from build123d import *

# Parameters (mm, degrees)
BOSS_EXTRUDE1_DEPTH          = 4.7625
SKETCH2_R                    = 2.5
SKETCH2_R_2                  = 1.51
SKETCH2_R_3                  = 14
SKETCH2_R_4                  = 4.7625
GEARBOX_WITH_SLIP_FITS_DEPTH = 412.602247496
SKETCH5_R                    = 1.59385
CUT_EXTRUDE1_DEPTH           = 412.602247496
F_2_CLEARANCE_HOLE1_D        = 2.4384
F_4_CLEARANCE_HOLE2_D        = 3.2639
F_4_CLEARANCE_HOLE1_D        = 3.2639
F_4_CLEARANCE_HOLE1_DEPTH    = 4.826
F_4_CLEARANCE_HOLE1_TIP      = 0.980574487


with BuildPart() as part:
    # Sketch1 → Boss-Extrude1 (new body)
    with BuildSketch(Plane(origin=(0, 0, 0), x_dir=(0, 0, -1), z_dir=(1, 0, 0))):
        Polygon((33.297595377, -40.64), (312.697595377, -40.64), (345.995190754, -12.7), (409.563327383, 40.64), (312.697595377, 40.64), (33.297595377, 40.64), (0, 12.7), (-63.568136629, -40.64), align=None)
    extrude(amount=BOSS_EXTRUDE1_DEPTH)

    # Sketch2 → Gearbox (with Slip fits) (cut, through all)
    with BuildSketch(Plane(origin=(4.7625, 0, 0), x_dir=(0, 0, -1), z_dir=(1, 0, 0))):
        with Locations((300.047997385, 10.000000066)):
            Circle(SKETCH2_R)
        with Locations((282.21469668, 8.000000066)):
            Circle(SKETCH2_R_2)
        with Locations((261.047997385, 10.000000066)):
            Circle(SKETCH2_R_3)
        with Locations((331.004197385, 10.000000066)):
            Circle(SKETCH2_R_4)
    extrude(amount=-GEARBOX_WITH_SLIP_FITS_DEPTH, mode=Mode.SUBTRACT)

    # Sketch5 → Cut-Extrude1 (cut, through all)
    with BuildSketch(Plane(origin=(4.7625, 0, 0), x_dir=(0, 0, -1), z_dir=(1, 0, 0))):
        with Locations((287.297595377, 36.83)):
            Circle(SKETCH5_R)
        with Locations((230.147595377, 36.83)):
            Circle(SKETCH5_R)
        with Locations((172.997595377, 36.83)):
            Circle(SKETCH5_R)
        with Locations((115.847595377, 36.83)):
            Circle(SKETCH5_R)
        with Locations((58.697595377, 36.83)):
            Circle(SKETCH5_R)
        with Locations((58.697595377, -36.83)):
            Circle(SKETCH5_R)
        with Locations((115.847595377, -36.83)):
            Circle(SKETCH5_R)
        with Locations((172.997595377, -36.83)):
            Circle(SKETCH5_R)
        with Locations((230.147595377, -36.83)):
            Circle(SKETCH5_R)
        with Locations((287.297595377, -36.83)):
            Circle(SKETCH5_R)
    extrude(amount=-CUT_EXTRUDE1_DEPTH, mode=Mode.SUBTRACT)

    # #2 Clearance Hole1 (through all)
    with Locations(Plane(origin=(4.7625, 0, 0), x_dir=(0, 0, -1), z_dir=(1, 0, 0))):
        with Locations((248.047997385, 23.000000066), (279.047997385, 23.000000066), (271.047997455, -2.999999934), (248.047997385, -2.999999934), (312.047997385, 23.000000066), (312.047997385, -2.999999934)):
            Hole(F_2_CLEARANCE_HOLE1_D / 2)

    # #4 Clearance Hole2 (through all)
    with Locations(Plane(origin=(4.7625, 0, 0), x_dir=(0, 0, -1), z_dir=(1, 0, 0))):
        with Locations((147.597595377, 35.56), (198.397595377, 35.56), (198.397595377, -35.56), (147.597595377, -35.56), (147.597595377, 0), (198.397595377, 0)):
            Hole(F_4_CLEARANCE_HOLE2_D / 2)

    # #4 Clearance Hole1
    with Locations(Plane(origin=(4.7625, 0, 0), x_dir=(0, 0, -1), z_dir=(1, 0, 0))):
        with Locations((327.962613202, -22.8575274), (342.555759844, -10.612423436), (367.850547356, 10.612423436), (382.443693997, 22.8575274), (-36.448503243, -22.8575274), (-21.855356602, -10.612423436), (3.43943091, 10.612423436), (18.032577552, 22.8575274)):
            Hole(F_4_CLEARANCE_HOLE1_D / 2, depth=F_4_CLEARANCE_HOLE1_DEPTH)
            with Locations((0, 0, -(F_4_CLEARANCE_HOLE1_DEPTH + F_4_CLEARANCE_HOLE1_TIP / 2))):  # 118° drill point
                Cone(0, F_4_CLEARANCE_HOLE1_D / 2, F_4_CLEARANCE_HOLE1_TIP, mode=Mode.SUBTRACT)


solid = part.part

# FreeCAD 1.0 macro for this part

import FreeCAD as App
import Part
import Sketcher

V = App.Vector
Q = App.Units.Quantity

doc = App.newDocument("Part")
params = doc.addObject("Spreadsheet::Sheet", "Params")
for row, (alias, value) in enumerate([
    ("pad1_length", "0.1875 in"),
    ("sketch2_diameter", "0.375 in"),
    ("sketch4_diameter", "0.096 in"),
    ("hole_diameter", "0.096 in"),
    ("hole2_diameter", "0.1285 in"),
    ("hole3_diameter", "0.1285 in"),
    ("hole3_depth", "0.19 in"),
], start=1):
    params.set(f"A{row}", alias)
    params.set(f"B{row}", "=" + value)
    params.setAlias(f"B{row}", alias)

body = doc.addObject("PartDesign::Body", "Body")

# Sketch on YZ plane
sketch1 = body.newObject("Sketcher::SketchObject", "Sketch")
sketch1.AttachmentSupport = (doc.getObject("YZ_Plane"), [""])
sketch1.MapMode = "FlatFace"
sketch1.addGeometry(Part.LineSegment(V(-41, -313, 0), V(-13, -346, 0)), False)
sketch1.addGeometry(Part.LineSegment(V(-13, -346, 0), V(41, -410, 0)), False)
sketch1.addGeometry(Part.LineSegment(V(41, -410, 0), V(41, -33, 0)), False)
sketch1.addGeometry(Part.LineSegment(V(41, -33, 0), V(13, 0, 0)), False)
sketch1.addGeometry(Part.LineSegment(V(13, 0, 0), V(-41, 64, 0)), False)
sketch1.addGeometry(Part.LineSegment(V(-41, 64, 0), V(-41, -313, 0)), False)
sketch1.addConstraint(Sketcher.Constraint("Coincident", 0, 2, 1, 1))
sketch1.addConstraint(Sketcher.Constraint("Coincident", 1, 2, 2, 1))
sketch1.addConstraint(Sketcher.Constraint("Coincident", 2, 2, 3, 1))
sketch1.addConstraint(Sketcher.Constraint("Coincident", 3, 2, 4, 1))
sketch1.addConstraint(Sketcher.Constraint("Coincident", 4, 2, 5, 1))
sketch1.addConstraint(Sketcher.Constraint("Coincident", 5, 2, 0, 1))
sketch1.addConstraint(Sketcher.Constraint("Vertical", 2))
sketch1.addConstraint(Sketcher.Constraint("Vertical", 5))
sketch1.addConstraint(Sketcher.Constraint("PointOnObject", 3, 2, -1))
sketch1.addConstraint(Sketcher.Constraint("Parallel", 0, 1))
sketch1.addConstraint(Sketcher.Constraint("Parallel", 1, 3))
sketch1.addConstraint(Sketcher.Constraint("Parallel", 3, 4))
sketch1.addConstraint(Sketcher.Constraint("Equal", 0, 3))
sketch1.addConstraint(Sketcher.Constraint("Angle", 0, Q("-50 deg")))
sketch1.addConstraint(Sketcher.Constraint("DistanceX", 0, 2, 3, 2, Q("1 in")))
sketch1.addConstraint(Sketcher.Constraint("DistanceY", 5, 2, 2, 2, Q("11 in")))
sketch1.addConstraint(Sketcher.Constraint("DistanceX", 0, 2, -1, 1, Q("0.5 in")))
sketch1.addConstraint(Sketcher.Constraint("DistanceX", -1, 1, 1, 2, Q("1.6 in")))
pad1 = body.newObject("PartDesign::Pad", "Pad")
pad1.Profile = sketch1
pad1.setExpression("Length", "Params.pad1_length")

# Sketch on YZ plane
sketch2 = body.newObject("Sketcher::SketchObject", "Sketch001")
sketch2.AttachmentSupport = (doc.getObject("YZ_Plane"), [""])
sketch2.MapMode = "FlatFace"
sketch2.AttachmentOffset = App.Placement(V(0, 0, 0.1875 * 25.4), App.Rotation())
sketch2.addGeometry(Part.Circle(V(10, -300, 0), V(0, 0, 1), 2.5), False)
sketch2.addGeometry(Part.Circle(V(8, -282.2, 0), V(0, 0, 1), 1.5), False)
sketch2.addGeometry(Part.Circle(V(10, -261, 0), V(0, 0, 1), 14), False)
sketch2.addGeometry(Part.Circle(V(10, -331, 0), V(0, 0, 1), 4.8), False)
sketch2.addConstraint(Sketcher.Constraint("Vertical", 0, 3, 2, 3))
sketch2.addConstraint(Sketcher.Constraint("Vertical", 2, 3, 3, 3))
sketch2.addConstraint(Sketcher.Constraint("Diameter", 3, Q("0.375 in")))
sketch2.addConstraint(Sketcher.Constraint("Diameter", 0, Q("5 mm")))
sketch2.addConstraint(Sketcher.Constraint("Diameter", 1, Q("3.02 mm")))
sketch2.addConstraint(Sketcher.Constraint("Diameter", 2, Q("28 mm")))
sketch2.addConstraint(Sketcher.Constraint("DistanceX", -1, 1, 0, 3, Q("10 mm")))
sketch2.addConstraint(Sketcher.Constraint("DistanceX", -1, 1, 1, 3, Q("8 mm")))
sketch2.addConstraint(Sketcher.Constraint("DistanceY", 0, 3, 1, 3, Q("17.833301 mm")))
sketch2.addConstraint(Sketcher.Constraint("DistanceY", 1, 3, 2, 3, Q("21.166699 mm")))
sketch2.addConstraint(Sketcher.Constraint("DistanceY", 3, 3, 0, 3, Q("30.9562 mm")))
sketch2.addConstraint(Sketcher.Constraint("DistanceY", 0, 3, -1, 1, Q("300.047997 mm")))
sketch2.setExpression("Constraints[2]", "Params.sketch2_diameter")
pocket1 = body.newObject("PartDesign::Pocket", "Pocket")
pocket1.Profile = sketch2
pocket1.Type = "ThroughAll"

# Sketch on YZ plane
sketch3 = body.newObject("Sketcher::SketchObject", "Sketch002")
sketch3.AttachmentSupport = (doc.getObject("YZ_Plane"), [""])
sketch3.MapMode = "FlatFace"
sketch3.AttachmentOffset = App.Placement(V(0, 0, 0.1875 * 25.4), App.Rotation())
sketch3.addGeometry(Part.Circle(V(36.8, -287.3, 0), V(0, 0, 1), 1.6), False)
sketch3.addGeometry(Part.Circle(V(36.8, -230.1, 0), V(0, 0, 1), 1.6), False)
sketch3.addGeometry(Part.Circle(V(36.8, -173, 0), V(0, 0, 1), 1.6), False)
sketch3.addGeometry(Part.Circle(V(36.8, -115.8, 0), V(0, 0, 1), 1.6), False)
sketch3.addGeometry(Part.Circle(V(36.8, -58.7, 0), V(0, 0, 1), 1.6), False)
sketch3.addGeometry(Part.Circle(V(-36.8, -58.7, 0), V(0, 0, 1), 1.6), False)
sketch3.addGeometry(Part.Circle(V(-36.8, -115.8, 0), V(0, 0, 1), 1.6), False)
sketch3.addGeometry(Part.Circle(V(-36.8, -173, 0), V(0, 0, 1), 1.6), False)
sketch3.addGeometry(Part.Circle(V(-36.8, -230.1, 0), V(0, 0, 1), 1.6), False)
sketch3.addGeometry(Part.Circle(V(-36.8, -287.3, 0), V(0, 0, 1), 1.6), False)
sketch3.addConstraint(Sketcher.Constraint("Equal", 0, 1))
sketch3.addConstraint(Sketcher.Constraint("Equal", 1, 2))
sketch3.addConstraint(Sketcher.Constraint("Equal", 2, 3))
sketch3.addConstraint(Sketcher.Constraint("Equal", 3, 4))
sketch3.addConstraint(Sketcher.Constraint("Equal", 4, 5))
sketch3.addConstraint(Sketcher.Constraint("Equal", 5, 6))
sketch3.addConstraint(Sketcher.Constraint("Equal", 6, 7))
sketch3.addConstraint(Sketcher.Constraint("Equal", 7, 8))
sketch3.addConstraint(Sketcher.Constraint("Equal", 8, 9))
sketch3.addConstraint(Sketcher.Constraint("Symmetric", 4, 3, 5, 3, -2))
sketch3.addConstraint(Sketcher.Constraint("Symmetric", 3, 3, 6, 3, -2))
sketch3.addConstraint(Sketcher.Constraint("Symmetric", 2, 3, 7, 3, -2))
sketch3.addConstraint(Sketcher.Constraint("Symmetric", 1, 3, 8, 3, -2))
sketch3.addConstraint(Sketcher.Constraint("Symmetric", 0, 3, 9, 3, -2))
sketch3.addConstraint(Sketcher.Constraint("Vertical", 0, 3, 1, 3))
sketch3.addConstraint(Sketcher.Constraint("Vertical", 1, 3, 2, 3))
sketch3.addConstraint(Sketcher.Constraint("Vertical", 2, 3, 3, 3))
sketch3.addConstraint(Sketcher.Constraint("Vertical", 3, 3, 4, 3))
sketch3.addConstraint(Sketcher.Constraint("DistanceY", 0, 3, 4, 3, Q("9 in")))
sketch3.addConstraint(Sketcher.Constraint("Diameter", 0, Q("0.1255 in")))
sketch3.addConstraint(Sketcher.Constraint("DistanceY", 0, 3, 2, 3, Q("4.5 in")))
sketch3.addConstraint(Sketcher.Constraint("DistanceY", 1, 3, 3, 3, Q("4.5 in")))
sketch3.addConstraint(Sketcher.Constraint("DistanceX", 5, 3, 4, 3, Q("2.9 in")))
sketch3.addConstraint(Sketcher.Constraint("DistanceY", 0, 3, 1, 3, Q("2.25 in")))
sketch3.addConstraint(Sketcher.Constraint("DistanceY", 0, 3, -1, 1, Q("287.297595 mm")))
pocket2 = body.newObject("PartDesign::Pocket", "Pocket001")
pocket2.Profile = sketch3
pocket2.Type = "ThroughAll"

# Sketch on YZ plane
sketch4 = body.newObject("Sketcher::SketchObject", "Sketch003")
sketch4.AttachmentSupport = (doc.getObject("YZ_Plane"), [""])
sketch4.MapMode = "FlatFace"
sketch4.AttachmentOffset = App.Placement(V(0, 0, 0.1875 * 25.4), App.Rotation())
sketch4.addGeometry(Part.Circle(V(23, -248, 0), V(0, 0, 1), 1.2), False)
sketch4.addGeometry(Part.Circle(V(23, -279, 0), V(0, 0, 1), 1.2), False)
sketch4.addGeometry(Part.Circle(V(-3, -271, 0), V(0, 0, 1), 1.2), False)
sketch4.addGeometry(Part.Circle(V(-3, -248, 0), V(0, 0, 1), 1.2), False)
sketch4.addGeometry(Part.Circle(V(23, -312, 0), V(0, 0, 1), 1.2), False)
sketch4.addGeometry(Part.Circle(V(-3, -312, 0), V(0, 0, 1), 1.2), False)
sketch4.addConstraint(Sketcher.Constraint("Equal", 0, 1))
sketch4.addConstraint(Sketcher.Constraint("Equal", 1, 2))
sketch4.addConstraint(Sketcher.Constraint("Equal", 2, 3))
sketch4.addConstraint(Sketcher.Constraint("Equal", 3, 4))
sketch4.addConstraint(Sketcher.Constraint("Equal", 4, 5))
sketch4.addConstraint(Sketcher.Constraint("Horizontal", 0, 3, 3, 3))
sketch4.addConstraint(Sketcher.Constraint("Horizontal", 4, 3, 5, 3))
sketch4.addConstraint(Sketcher.Constraint("Vertical", 0, 3, 1, 3))
sketch4.addConstraint(Sketcher.Constraint("Vertical", 2, 3, 3, 3))
sketch4.addConstraint(Sketcher.Constraint("Vertical", 1, 3, 4, 3))
sketch4.addConstraint(Sketcher.Constraint("Vertical", 3, 3, 5, 3))
sketch4.addConstraint(Sketcher.Constraint("Diameter", 0, Q("0.096 in")))
sketch4.addConstraint(Sketcher.Constraint("DistanceX", -1, 1, 0, 3, Q("23 mm")))
sketch4.addConstraint(Sketcher.Constraint("DistanceX", 2, 3, -1, 1, Q("3 mm")))
sketch4.addConstraint(Sketcher.Constraint("DistanceY", 1, 3, 0, 3, Q("31 mm")))
sketch4.addConstraint(Sketcher.Constraint("DistanceY", 1, 3, 2, 3, Q("8 mm")))
sketch4.addConstraint(Sketcher.Constraint("DistanceY", 4, 3, 1, 3, Q("33 mm")))
sketch4.addConstraint(Sketcher.Constraint("DistanceY", 0, 3, -1, 1, Q("248.047997 mm")))
sketch4.setExpression("Constraints[11]", "Params.sketch4_diameter")
doc.recompute()
hole = body.newObject("PartDesign::Hole", "Hole")
hole.Profile = sketch4
hole.ThreadType = "None"
hole.setExpression("Diameter", "Params.hole_diameter")
hole.DepthType = "ThroughAll"

# Sketch on YZ plane
sketch5 = body.newObject("Sketcher::SketchObject", "Sketch004")
sketch5.AttachmentSupport = (doc.getObject("YZ_Plane"), [""])
sketch5.MapMode = "FlatFace"
sketch5.AttachmentOffset = App.Placement(V(0, 0, 0.1875 * 25.4), App.Rotation())
sketch5.addGeometry(Part.Circle(V(35.6, -147.6, 0), V(0, 0, 1), 1.6), False)
sketch5.addGeometry(Part.Circle(V(35.6, -198.4, 0), V(0, 0, 1), 1.6), False)
sketch5.addGeometry(Part.Circle(V(-35.6, -198.4, 0), V(0, 0, 1), 1.6), False)
sketch5.addGeometry(Part.Circle(V(-35.6, -147.6, 0), V(0, 0, 1), 1.6), False)
sketch5.addGeometry(Part.Circle(V(0, -147.6, 0), V(0, 0, 1), 1.6), False)
sketch5.addGeometry(Part.Circle(V(0, -198.4, 0), V(0, 0, 1), 1.6), False)
sketch5.addConstraint(Sketcher.Constraint("Equal", 0, 1))
sketch5.addConstraint(Sketcher.Constraint("Equal", 1, 2))
sketch5.addConstraint(Sketcher.Constraint("Equal", 2, 3))
sketch5.addConstraint(Sketcher.Constraint("Equal", 3, 4))
sketch5.addConstraint(Sketcher.Constraint("Equal", 4, 5))
sketch5.addConstraint(Sketcher.Constraint("Symmetric", 1, 3, 2, 3, -2))
sketch5.addConstraint(Sketcher.Constraint("Symmetric", 0, 3, 3, 3, -2))
sketch5.addConstraint(Sketcher.Constraint("PointOnObject", 4, 3, -2))
sketch5.addConstraint(Sketcher.Constraint("PointOnObject", 5, 3, -2))
sketch5.addConstraint(Sketcher.Constraint("Horizontal", 3, 3, 4, 3))
sketch5.addConstraint(Sketcher.Constraint("Horizontal", 2, 3, 5, 3))
sketch5.addConstraint(Sketcher.Constraint("Vertical", 0, 3, 1, 3))
sketch5.addConstraint(Sketcher.Constraint("DistanceY", 1, 3, 0, 3, Q("2 in")))
sketch5.addConstraint(Sketcher.Constraint("Diameter", 0, Q("0.1285 in")))
sketch5.addConstraint(Sketcher.Constraint("DistanceX", -1, 1, 0, 3, Q("1.4 in")))
sketch5.addConstraint(Sketcher.Constraint("DistanceY", 0, 3, -1, 1, Q("147.597595 mm")))
doc.recompute()
hole2 = body.newObject("PartDesign::Hole", "Hole001")
hole2.Profile = sketch5
hole2.ThreadType = "None"
hole2.setExpression("Diameter", "Params.hole2_diameter")
hole2.DepthType = "ThroughAll"

# Sketch on YZ plane
sketch6 = body.newObject("Sketcher::SketchObject", "Sketch005")
sketch6.AttachmentSupport = (doc.getObject("YZ_Plane"), [""])
sketch6.MapMode = "FlatFace"
sketch6.AttachmentOffset = App.Placement(V(0, 0, 0.1875 * 25.4), App.Rotation())
sketch6.addGeometry(Part.Circle(V(-22.9, -328, 0), V(0, 0, 1), 1.6), False)
sketch6.addGeometry(Part.Circle(V(-10.6, -342.6, 0), V(0, 0, 1), 1.6), False)
sketch6.addGeometry(Part.Circle(V(10.6, -367.9, 0), V(0, 0, 1), 1.6), False)
sketch6.addGeometry(Part.Circle(V(22.9, -382.4, 0), V(0, 0, 1), 1.6), False)
sketch6.addGeometry(Part.Circle(V(-22.9, 36.4, 0), V(0, 0, 1), 1.6), False)
sketch6.addGeometry(Part.Circle(V(-10.6, 21.9, 0), V(0, 0, 1), 1.6), False)
sketch6.addGeometry(Part.Circle(V(10.6, -3.4, 0), V(0, 0, 1), 1.6), False)
sketch6.addGeometry(Part.Circle(V(22.9, -18, 0), V(0, 0, 1), 1.6), False)
sketch6.addConstraint(Sketcher.Constraint("Equal", 0, 1))
sketch6.addConstraint(Sketcher.Constraint("Equal", 1, 2))
sketch6.addConstraint(Sketcher.Constraint("Equal", 2, 3))
sketch6.addConstraint(Sketcher.Constraint("Equal", 3, 4))
sketch6.addConstraint(Sketcher.Constraint("Equal", 4, 5))
sketch6.addConstraint(Sketcher.Constraint("Equal", 5, 6))
sketch6.addConstraint(Sketcher.Constraint("Equal", 6, 7))
sketch6.addConstraint(Sketcher.Constraint("Vertical", 0, 3, 4, 3))
sketch6.addConstraint(Sketcher.Constraint("Vertical", 1, 3, 5, 3))
sketch6.addConstraint(Sketcher.Constraint("Vertical", 2, 3, 6, 3))
sketch6.addConstraint(Sketcher.Constraint("Vertical", 3, 3, 7, 3))
sketch6.addConstraint(Sketcher.Constraint("Diameter", 0, Q("0.1285 in")))
sketch6.addConstraint(Sketcher.Constraint("DistanceY", 1, 3, -1, 1, Q("342.55576 mm")))
sketch6.addConstraint(Sketcher.Constraint("DistanceY", 6, 3, -1, 1, Q("3.439431 mm")))
sketch6.addConstraint(Sketcher.Constraint("DistanceX", 0, 3, 2, 3, Q("33.469951 mm")))
sketch6.addConstraint(Sketcher.Constraint("DistanceX", 1, 3, 3, 3, Q("33.469951 mm")))
sketch6.addConstraint(Sketcher.Constraint("DistanceY", 3, 3, 0, 3, Q("54.481081 mm")))
sketch6.addConstraint(Sketcher.Constraint("DistanceY", 2, 3, 4, 3, Q("404.299051 mm")))
sketch6.addConstraint(Sketcher.Constraint("DistanceY", 0, 3, 5, 3, Q("349.81797 mm")))
sketch6.addConstraint(Sketcher.Constraint("DistanceY", 7, 3, 4, 3, Q("54.481081 mm")))
sketch6.addConstraint(Sketcher.Constraint("DistanceX", 0, 3, -1, 1, Q("22.857527 mm")))
sketch6.addConstraint(Sketcher.Constraint("DistanceY", 0, 3, -1, 1, Q("327.962613 mm")))
sketch6.addConstraint(Sketcher.Constraint("DistanceX", 1, 3, -1, 1, Q("10.612423 mm")))
sketch6.addConstraint(Sketcher.Constraint("DistanceY", 2, 3, -1, 1, Q("367.850547 mm")))
doc.recompute()
hole3 = body.newObject("PartDesign::Hole", "Hole002")
hole3.Profile = sketch6
hole3.ThreadType = "None"
hole3.setExpression("Diameter", "Params.hole3_diameter")
hole3.DepthType = "Dimension"
hole3.setExpression("Depth", "Params.hole3_depth")
hole3.DrillPoint = "Angled"
hole3.DrillPointAngle = 118

doc.recompute()
